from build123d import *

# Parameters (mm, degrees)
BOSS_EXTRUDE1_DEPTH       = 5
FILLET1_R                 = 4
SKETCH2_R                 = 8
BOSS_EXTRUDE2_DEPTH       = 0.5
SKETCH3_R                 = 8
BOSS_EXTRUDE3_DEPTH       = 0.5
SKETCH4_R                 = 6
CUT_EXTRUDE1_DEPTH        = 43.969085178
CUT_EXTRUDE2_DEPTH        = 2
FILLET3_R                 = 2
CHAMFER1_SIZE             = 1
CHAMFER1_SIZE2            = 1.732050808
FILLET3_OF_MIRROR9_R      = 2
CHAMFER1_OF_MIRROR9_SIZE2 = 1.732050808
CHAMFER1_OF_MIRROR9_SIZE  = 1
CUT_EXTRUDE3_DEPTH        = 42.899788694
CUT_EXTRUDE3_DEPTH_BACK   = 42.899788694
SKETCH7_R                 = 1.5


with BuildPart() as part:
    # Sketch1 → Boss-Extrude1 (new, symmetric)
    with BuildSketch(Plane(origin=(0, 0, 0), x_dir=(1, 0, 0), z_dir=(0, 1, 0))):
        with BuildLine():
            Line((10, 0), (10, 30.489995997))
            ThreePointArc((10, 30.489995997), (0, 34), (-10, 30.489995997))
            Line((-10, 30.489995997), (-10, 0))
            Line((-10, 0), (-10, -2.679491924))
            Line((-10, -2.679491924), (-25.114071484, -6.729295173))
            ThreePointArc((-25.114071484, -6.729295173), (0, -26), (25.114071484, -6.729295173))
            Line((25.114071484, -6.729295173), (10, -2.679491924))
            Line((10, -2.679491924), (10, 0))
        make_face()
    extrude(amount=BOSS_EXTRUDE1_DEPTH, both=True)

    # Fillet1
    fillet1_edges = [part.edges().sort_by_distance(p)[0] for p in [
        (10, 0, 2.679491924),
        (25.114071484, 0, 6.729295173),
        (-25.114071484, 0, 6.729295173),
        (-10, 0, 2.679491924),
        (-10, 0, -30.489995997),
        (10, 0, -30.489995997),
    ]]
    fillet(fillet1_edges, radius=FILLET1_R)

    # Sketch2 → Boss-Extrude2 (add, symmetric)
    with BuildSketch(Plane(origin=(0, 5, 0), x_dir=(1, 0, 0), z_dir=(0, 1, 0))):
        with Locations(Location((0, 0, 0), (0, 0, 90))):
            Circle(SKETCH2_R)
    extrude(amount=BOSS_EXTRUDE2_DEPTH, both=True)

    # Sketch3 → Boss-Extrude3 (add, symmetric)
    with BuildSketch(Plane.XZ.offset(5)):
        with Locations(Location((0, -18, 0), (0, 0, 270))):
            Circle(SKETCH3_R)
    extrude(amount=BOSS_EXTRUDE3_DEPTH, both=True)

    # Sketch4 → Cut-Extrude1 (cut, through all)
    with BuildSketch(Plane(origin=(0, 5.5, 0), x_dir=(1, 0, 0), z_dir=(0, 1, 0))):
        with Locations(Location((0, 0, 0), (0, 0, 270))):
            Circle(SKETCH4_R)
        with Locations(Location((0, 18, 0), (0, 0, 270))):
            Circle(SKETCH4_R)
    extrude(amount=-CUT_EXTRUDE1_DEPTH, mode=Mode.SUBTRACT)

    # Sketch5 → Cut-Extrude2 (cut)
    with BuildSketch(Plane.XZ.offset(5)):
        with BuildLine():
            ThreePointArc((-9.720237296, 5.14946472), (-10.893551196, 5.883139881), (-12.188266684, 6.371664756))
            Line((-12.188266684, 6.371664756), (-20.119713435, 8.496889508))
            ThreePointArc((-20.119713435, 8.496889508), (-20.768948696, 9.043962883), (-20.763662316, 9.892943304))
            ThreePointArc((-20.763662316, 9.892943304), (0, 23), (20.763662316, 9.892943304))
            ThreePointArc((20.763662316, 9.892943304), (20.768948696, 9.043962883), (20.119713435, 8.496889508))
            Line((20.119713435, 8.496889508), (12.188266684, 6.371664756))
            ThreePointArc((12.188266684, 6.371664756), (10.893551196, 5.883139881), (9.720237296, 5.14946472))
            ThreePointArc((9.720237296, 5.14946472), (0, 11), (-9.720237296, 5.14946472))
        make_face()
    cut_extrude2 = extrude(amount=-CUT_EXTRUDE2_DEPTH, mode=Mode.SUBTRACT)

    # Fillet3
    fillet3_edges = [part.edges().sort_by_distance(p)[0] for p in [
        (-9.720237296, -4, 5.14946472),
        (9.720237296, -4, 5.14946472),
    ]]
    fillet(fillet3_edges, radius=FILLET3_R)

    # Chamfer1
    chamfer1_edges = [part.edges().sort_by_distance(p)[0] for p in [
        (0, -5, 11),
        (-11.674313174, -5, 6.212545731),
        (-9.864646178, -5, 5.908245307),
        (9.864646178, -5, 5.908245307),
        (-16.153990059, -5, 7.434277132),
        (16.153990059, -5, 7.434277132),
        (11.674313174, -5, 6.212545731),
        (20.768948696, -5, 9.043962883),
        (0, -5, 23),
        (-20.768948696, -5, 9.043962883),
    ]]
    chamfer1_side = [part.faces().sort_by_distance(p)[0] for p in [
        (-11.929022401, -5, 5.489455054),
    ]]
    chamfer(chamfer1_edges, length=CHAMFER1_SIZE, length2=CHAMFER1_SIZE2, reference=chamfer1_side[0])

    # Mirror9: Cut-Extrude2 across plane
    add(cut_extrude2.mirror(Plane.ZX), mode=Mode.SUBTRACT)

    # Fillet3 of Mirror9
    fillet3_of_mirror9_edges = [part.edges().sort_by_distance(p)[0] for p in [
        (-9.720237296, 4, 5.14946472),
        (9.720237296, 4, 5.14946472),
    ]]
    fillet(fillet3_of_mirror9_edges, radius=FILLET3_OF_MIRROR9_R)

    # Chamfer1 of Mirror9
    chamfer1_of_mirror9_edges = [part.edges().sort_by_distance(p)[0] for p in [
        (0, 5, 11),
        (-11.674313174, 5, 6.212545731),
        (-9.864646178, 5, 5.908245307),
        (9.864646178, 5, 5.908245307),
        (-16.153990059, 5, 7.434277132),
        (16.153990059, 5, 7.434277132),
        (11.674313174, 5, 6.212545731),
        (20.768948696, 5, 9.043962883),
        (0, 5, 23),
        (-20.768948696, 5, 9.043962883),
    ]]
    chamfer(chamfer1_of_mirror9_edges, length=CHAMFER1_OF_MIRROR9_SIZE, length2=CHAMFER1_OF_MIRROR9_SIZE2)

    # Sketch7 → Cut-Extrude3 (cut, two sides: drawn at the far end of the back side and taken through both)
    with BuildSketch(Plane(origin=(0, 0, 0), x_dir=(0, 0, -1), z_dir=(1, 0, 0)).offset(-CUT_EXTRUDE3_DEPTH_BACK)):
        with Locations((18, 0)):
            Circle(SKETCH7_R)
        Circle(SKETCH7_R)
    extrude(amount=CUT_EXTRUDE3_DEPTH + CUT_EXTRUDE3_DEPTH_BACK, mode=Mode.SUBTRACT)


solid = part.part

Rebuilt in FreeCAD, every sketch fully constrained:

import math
import FreeCAD as App
import Part
import Sketcher
Q = App.Units.Quantity


def edges_at(feature, points):
    """Names of the edges that pass closest to the given points."""
    edges = feature.Shape.Edges
    near = lambda p: min(range(len(edges)), key=lambda i: edges[i].distToShape(Part.Vertex(*p))[0])
    return sorted({f"Edge{near(p) + 1}" for p in points})

doc = App.newDocument("Part")
body = doc.addObject("PartDesign::Body", "Body")

sketch1 = body.newObject("Sketcher::SketchObject", "Sketch")
sketch1.AttachmentSupport = (doc.getObject("XZ_Plane"), [""])
sketch1.MapMode = "FlatFace"
sketch1.addGeometry([
    Part.ArcOfCircle(Part.Circle(App.Vector(0, -18, 0), App.Vector(0, 0, 1), 16), math.radians(-129), math.radians(-51)),
    Part.LineSegment(App.Vector(-10, -30, 0), App.Vector(-10, 3, 0)),
    Part.LineSegment(App.Vector(-10, 3, 0), App.Vector(-25, 7, 0)),
    Part.ArcOfCircle(Part.Circle(App.Vector(0, 0, 0), App.Vector(0, 0, 1), 26), math.radians(15), math.radians(165)),
    Part.LineSegment(App.Vector(25, 7, 0), App.Vector(10, 3, 0)),
    Part.LineSegment(App.Vector(10, 3, 0), App.Vector(10, -30, 0)),
], False)
sketch1.addConstraint([
    Sketcher.Constraint("Coincident", 0, 1, 1, 1),
    Sketcher.Constraint("Coincident", 1, 2, 2, 1),
    Sketcher.Constraint("Coincident", 2, 2, 3, 2),
    Sketcher.Constraint("Coincident", 3, 1, 4, 1),
    Sketcher.Constraint("Coincident", 4, 2, 5, 1),
    Sketcher.Constraint("Coincident", 5, 2, 0, 2),
    Sketcher.Constraint("Vertical", 1),
    Sketcher.Constraint("Vertical", 5),
    Sketcher.Constraint("Coincident", 3, 3, -1, 1),
    Sketcher.Constraint("Symmetric", 1, 2, 4, 2, -2),
    Sketcher.Constraint("PointOnObject", 0, 3, -2),
    Sketcher.Constraint("Horizontal", 2, 2, 3, 1),
    Sketcher.Constraint("Radius", 0, 16.0),
    Sketcher.Constraint("Radius", 3, 26.0),
    Sketcher.Constraint("Angle", 2, Q("165 deg")),
    Sketcher.Constraint("DistanceY", 0, 3, -1, 1, 18.0),
    Sketcher.Constraint("DistanceX", 0, 1, -1, 1, 10.0),
    Sketcher.Constraint("Distance", 2, 15.647238),
])
pad1 = body.newObject("PartDesign::Pad", "Pad")
pad1.Profile = sketch1
pad1.Length = 10
pad1.Midplane = True
doc.recompute()

fillet = body.newObject("PartDesign::Fillet", "Fillet")
fillet.Base = (pad1, edges_at(pad1, [
    (10, 0, 2.679),
    (25.114, 0, 6.729),
    (-25.114, 0, 6.729),
    (-10, 0, 2.679),
    (-10, 0, -30.49),
    (10, 0, -30.49),
]))
fillet.Radius = 4

sketch2 = body.newObject("Sketcher::SketchObject", "Sketch001")
sketch2.AttachmentSupport = (doc.getObject("XZ_Plane"), [""])
sketch2.MapMode = "FlatFace"
sketch2.AttachmentOffset = App.Placement(App.Vector(0, 0, -5), App.Rotation())
sketch2.addGeometry(Part.Circle(App.Vector(0, 0, 0), App.Vector(0, 0, 1), 8), False)
sketch2.addConstraint([
    Sketcher.Constraint("Coincident", 0, 3, -1, 1),
    Sketcher.Constraint("Diameter", 0, 16.0),
])
pad2 = body.newObject("PartDesign::Pad", "Pad001")
pad2.Profile = sketch2
pad2.Length = 1
pad2.Midplane = True

sketch3 = body.newObject("Sketcher::SketchObject", "Sketch002")
sketch3.AttachmentSupport = (doc.getObject("XZ_Plane"), [""])
sketch3.MapMode = "FlatFace"
sketch3.AttachmentOffset = App.Placement(App.Vector(0, 0, 5), App.Rotation())
sketch3.addGeometry(Part.Circle(App.Vector(0, -18, 0), App.Vector(0, 0, 1), 8), False)
sketch3.addConstraint([
    Sketcher.Constraint("PointOnObject", 0, 3, -2),
    Sketcher.Constraint("Diameter", 0, 16.0),
    Sketcher.Constraint("DistanceY", 0, 3, -1, 1, 18.0),
])
pad3 = body.newObject("PartDesign::Pad", "Pad002")
pad3.Profile = sketch3
pad3.Length = 1
pad3.Midplane = True

sketch4 = body.newObject("Sketcher::SketchObject", "Sketch003")
sketch4.AttachmentSupport = (doc.getObject("XZ_Plane"), [""])
sketch4.MapMode = "FlatFace"
sketch4.AttachmentOffset = App.Placement(App.Vector(0, 0, -5.5), App.Rotation())
sketch4.addGeometry([
    Part.Circle(App.Vector(0, 0, 0), App.Vector(0, 0, 1), 6),
    Part.Circle(App.Vector(0, -18, 0), App.Vector(0, 0, 1), 6),
], False)
sketch4.addConstraint([
    Sketcher.Constraint("Coincident", 0, 3, -1, 1),
    Sketcher.Constraint("Equal", 0, 1),
    Sketcher.Constraint("PointOnObject", 1, 3, -2),
    Sketcher.Constraint("Diameter", 0, 12.0),
    Sketcher.Constraint("DistanceY", 1, 3, -1, 1, 18.0),
])
pocket1 = body.newObject("PartDesign::Pocket", "Pocket")
pocket1.Profile = sketch4
pocket1.Type = "ThroughAll"
pocket1.Reversed = True

sketch5 = body.newObject("Sketcher::SketchObject", "Sketch004")
sketch5.AttachmentSupport = (doc.getObject("XZ_Plane"), [""])
sketch5.MapMode = "FlatFace"
sketch5.AttachmentOffset = App.Placement(App.Vector(0, 0, 5), App.Rotation())
sketch5.addGeometry([
    Part.ArcOfCircle(Part.Circle(App.Vector(-14, -0.4, 0), App.Vector(0, 0, 1), 7), math.radians(52), math.radians(75)),
    Part.ArcOfCircle(Part.Circle(App.Vector(0, 0, 0), App.Vector(0, 0, 1), 11), math.radians(28), math.radians(152)),
    Part.ArcOfCircle(Part.Circle(App.Vector(14, -0.4, 0), App.Vector(0, 0, 1), 7), math.radians(105), math.radians(128)),
    Part.LineSegment(App.Vector(12.2, 6.4, 0), App.Vector(20.1, 8.5, 0)),
    Part.ArcOfCircle(Part.Circle(App.Vector(19.9, 9.5, 0), App.Vector(0, 0, 1), 1), math.radians(-75), math.radians(25)),
    Part.ArcOfCircle(Part.Circle(App.Vector(0, 0, 0), App.Vector(0, 0, 1), 23), math.radians(25), math.radians(155)),
    Part.ArcOfCircle(Part.Circle(App.Vector(-19.9, 9.5, 0), App.Vector(0, 0, 1), 1), math.radians(155), math.radians(255)),
    Part.LineSegment(App.Vector(-20.1, 8.5, 0), App.Vector(-12.2, 6.4, 0)),
], False)
sketch5.addConstraint([
    Sketcher.Constraint("Coincident", 0, 1, 1, 2),
    Sketcher.Constraint("Coincident", 1, 1, 2, 2),
    Sketcher.Constraint("Tangent", 2, 1, 3, 1),
    Sketcher.Constraint("Tangent", 3, 2, 4, 1),
    Sketcher.Constraint("Tangent", 4, 2, 5, 1),
    Sketcher.Constraint("Tangent", 5, 2, 6, 1),
    Sketcher.Constraint("Tangent", 6, 2, 7, 1),
    Sketcher.Constraint("Tangent", 7, 2, 0, 2),
    Sketcher.Constraint("Coincident", 1, 3, -1, 1),
    Sketcher.Constraint("Coincident", 5, 3, -1, 1),
    Sketcher.Constraint("Equal", 0, 2),
    Sketcher.Constraint("Equal", 4, 6),
    Sketcher.Constraint("Symmetric", 0, 3, 2, 3, -2),
    Sketcher.Constraint("Horizontal", 4, 3, 6, 3),
    Sketcher.Constraint("Radius", 0, 7.0),
    Sketcher.Constraint("Radius", 1, 11.0),
    Sketcher.Constraint("Radius", 4, 1.0),
    Sketcher.Constraint("Radius", 5, 23.0),
    Sketcher.Constraint("Angle", 3, Q("15 deg")),
    Sketcher.Constraint("DistanceX", 0, 3, -1, 1, 14.0),
    Sketcher.Constraint("DistanceY", 1, 1, 2, 1, 1.2222),
])
pocket2 = body.newObject("PartDesign::Pocket", "Pocket001")
pocket2.Profile = sketch5
pocket2.Length = 2
doc.recompute()

fillet2 = body.newObject("PartDesign::Fillet", "Fillet001")
fillet2.Base = (pocket2, edges_at(pocket2, [(-9.72, -4, 5.149), (9.72, -4, 5.149)]))
fillet2.Radius = 2
doc.recompute()

chamfer = body.newObject("PartDesign::Chamfer", "Chamfer")
chamfer.Base = (fillet2, edges_at(fillet2, [
    (0, -5, 11),
    (-11.674, -5, 6.213),
    (-9.865, -5, 5.908),
    (9.865, -5, 5.908),
    (-16.154, -5, 7.434),
    (16.154, -5, 7.434),
    (11.674, -5, 6.213),
    (20.769, -5, 9.044),
    (0, -5, 23),
    (-20.769, -5, 9.044),
]))
chamfer.ChamferType = "Two distances"
chamfer.Size = 1
chamfer.Size2 = 1.732051
doc.recompute()

mirrored = body.newObject("PartDesign::Mirrored", "Mirrored")
mirrored.Originals = [pocket2]
mirrored.MirrorPlane = (doc.getObject("XZ_Plane"), [""])
body.Tip = mirrored
doc.recompute()

fillet3 = body.newObject("PartDesign::Fillet", "Fillet002")
fillet3.Base = (mirrored, edges_at(mirrored, [(-9.72, 4, 5.149), (9.72, 4, 5.149)]))
fillet3.Radius = 2
doc.recompute()

chamfer2 = body.newObject("PartDesign::Chamfer", "Chamfer001")
chamfer2.Base = (fillet3, edges_at(fillet3, [
    (0, 5, 11),
    (-11.674, 5, 6.213),
    (-9.865, 5, 5.908),
    (9.865, 5, 5.908),
    (-16.154, 5, 7.434),
    (16.154, 5, 7.434),
    (11.674, 5, 6.213),
    (20.769, 5, 9.044),
    (0, 5, 23),
    (-20.769, 5, 9.044),
]))
chamfer2.ChamferType = "Two distances"
chamfer2.Size = 1
chamfer2.Size2 = 1.732051

sketch6 = body.newObject("Sketcher::SketchObject", "Sketch005")
sketch6.AttachmentSupport = (doc.getObject("YZ_Plane"), [""])
sketch6.MapMode = "FlatFace"
sketch6.addGeometry([
    Part.Circle(App.Vector(0, -18, 0), App.Vector(0, 0, 1), 1.5),
    Part.Circle(App.Vector(0, 0, 0), App.Vector(0, 0, 1), 1.5),
], False)
sketch6.addConstraint([
    Sketcher.Constraint("Coincident", 1, 3, -1, 1),
    Sketcher.Constraint("Equal", 0, 1),
    Sketcher.Constraint("PointOnObject", 0, 3, -2),
    Sketcher.Constraint("Diameter", 0, 3.0),
    Sketcher.Constraint("DistanceY", 0, 3, -1, 1, 18.0),
])
pocket3 = body.newObject("PartDesign::Pocket", "Pocket002")
pocket3.Profile = sketch6
pocket3.Type = "ThroughAll"
pocket3.Midplane = True

doc.recompute()
